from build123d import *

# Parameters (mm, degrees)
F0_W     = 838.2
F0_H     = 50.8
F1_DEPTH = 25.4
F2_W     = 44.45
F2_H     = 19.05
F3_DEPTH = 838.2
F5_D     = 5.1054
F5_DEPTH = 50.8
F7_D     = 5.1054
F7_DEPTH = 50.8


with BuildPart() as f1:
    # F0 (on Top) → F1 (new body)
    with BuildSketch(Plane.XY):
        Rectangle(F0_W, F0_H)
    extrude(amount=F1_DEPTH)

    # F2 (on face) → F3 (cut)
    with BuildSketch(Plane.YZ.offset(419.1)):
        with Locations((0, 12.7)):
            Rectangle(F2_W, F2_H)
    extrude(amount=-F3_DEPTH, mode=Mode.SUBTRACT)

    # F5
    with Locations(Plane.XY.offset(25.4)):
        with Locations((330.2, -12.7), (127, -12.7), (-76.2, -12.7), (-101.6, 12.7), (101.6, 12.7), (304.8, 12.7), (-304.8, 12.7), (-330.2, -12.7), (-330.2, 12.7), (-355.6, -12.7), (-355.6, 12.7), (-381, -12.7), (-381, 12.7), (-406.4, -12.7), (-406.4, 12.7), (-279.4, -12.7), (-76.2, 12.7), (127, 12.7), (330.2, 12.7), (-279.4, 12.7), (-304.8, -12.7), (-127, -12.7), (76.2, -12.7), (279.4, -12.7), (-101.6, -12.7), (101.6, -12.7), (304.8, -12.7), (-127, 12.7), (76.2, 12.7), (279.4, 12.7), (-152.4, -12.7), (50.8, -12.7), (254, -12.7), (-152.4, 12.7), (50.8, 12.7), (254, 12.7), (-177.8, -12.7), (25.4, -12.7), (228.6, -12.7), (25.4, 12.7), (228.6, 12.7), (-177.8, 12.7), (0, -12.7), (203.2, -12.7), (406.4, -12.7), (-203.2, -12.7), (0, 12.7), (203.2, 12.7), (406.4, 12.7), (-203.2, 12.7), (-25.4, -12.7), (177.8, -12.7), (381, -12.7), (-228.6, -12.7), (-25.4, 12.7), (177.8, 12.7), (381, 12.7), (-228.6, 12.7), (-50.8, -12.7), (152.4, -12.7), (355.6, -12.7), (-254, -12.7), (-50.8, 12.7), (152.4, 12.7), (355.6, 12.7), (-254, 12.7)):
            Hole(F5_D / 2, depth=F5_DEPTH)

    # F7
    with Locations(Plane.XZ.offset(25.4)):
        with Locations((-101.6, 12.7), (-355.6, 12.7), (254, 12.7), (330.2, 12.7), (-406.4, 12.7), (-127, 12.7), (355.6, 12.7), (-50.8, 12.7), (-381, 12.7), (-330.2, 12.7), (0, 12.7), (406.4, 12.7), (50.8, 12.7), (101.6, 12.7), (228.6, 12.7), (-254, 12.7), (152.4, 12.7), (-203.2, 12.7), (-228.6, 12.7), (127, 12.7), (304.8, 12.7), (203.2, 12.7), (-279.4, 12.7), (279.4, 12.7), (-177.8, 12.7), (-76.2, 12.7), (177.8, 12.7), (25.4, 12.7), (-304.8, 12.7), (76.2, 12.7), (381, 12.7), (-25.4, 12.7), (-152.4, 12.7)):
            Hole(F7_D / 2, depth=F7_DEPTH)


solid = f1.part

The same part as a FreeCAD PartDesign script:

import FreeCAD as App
import Part
import Sketcher
from FreeCAD import Vector
Q = App.Units.Quantity

doc = App.newDocument("Part")
body = doc.addObject("PartDesign::Body", "Body")

# Sketch on XY plane
sketch1 = body.newObject("Sketcher::SketchObject", "Sketch")
sketch1.AttachmentSupport = (doc.getObject("XY_Plane"), [""])
sketch1.MapMode = "FlatFace"
sketch1.addGeometry([
    Part.LineSegment(Vector(-419, 25, 0), Vector(-419, -25, 0)),
    Part.LineSegment(Vector(-419, -25, 0), Vector(419, -25, 0)),
    Part.LineSegment(Vector(419, -25, 0), Vector(419, 25, 0)),
    Part.LineSegment(Vector(419, 25, 0), Vector(-419, 25, 0)),
], False)
sketch1.addConstraint([
    Sketcher.Constraint("Coincident", 0, 2, 1, 1),
    Sketcher.Constraint("Coincident", 1, 2, 2, 1),
    Sketcher.Constraint("Coincident", 2, 2, 3, 1),
    Sketcher.Constraint("Coincident", 3, 2, 0, 1),
    Sketcher.Constraint("Vertical", 0),
    Sketcher.Constraint("Horizontal", 1),
    Sketcher.Constraint("Vertical", 2),
    Sketcher.Constraint("Horizontal", 3),
    Sketcher.Constraint("Symmetric", 0, 2, 2, 2, -1, 1),
    Sketcher.Constraint("DistanceX", 1, 1, 1, 2, Q("33 in")),
    Sketcher.Constraint("DistanceY", 0, 2, 0, 1, Q("2 in")),
])
pad1 = body.newObject("PartDesign::Pad", "Pad")
pad1.Profile = sketch1
pad1.Length = Q("1 in")

# Sketch on YZ plane
sketch2 = body.newObject("Sketcher::SketchObject", "Sketch001")
sketch2.AttachmentSupport = (doc.getObject("YZ_Plane"), [""])
sketch2.MapMode = "FlatFace"
sketch2.AttachmentOffset = App.Placement(Vector(0, 0, 16.5 * 25.4), App.Rotation())
sketch2.addGeometry([
    Part.LineSegment(Vector(-22, 22, 0), Vector(-22, 3, 0)),
    Part.LineSegment(Vector(-22, 3, 0), Vector(22, 3, 0)),
    Part.LineSegment(Vector(22, 3, 0), Vector(22, 22, 0)),
    Part.LineSegment(Vector(22, 22, 0), Vector(-22, 22, 0)),
], False)
sketch2.addConstraint([
    Sketcher.Constraint("Coincident", 0, 2, 1, 1),
    Sketcher.Constraint("Coincident", 1, 2, 2, 1),
    Sketcher.Constraint("Coincident", 2, 2, 3, 1),
    Sketcher.Constraint("Coincident", 3, 2, 0, 1),
    Sketcher.Constraint("Vertical", 0),
    Sketcher.Constraint("Horizontal", 1),
    Sketcher.Constraint("Vertical", 2),
    Sketcher.Constraint("Horizontal", 3),
    Sketcher.Constraint("DistanceX", 1, 1, 1, 2, Q("1.75 in")),
    Sketcher.Constraint("DistanceY", 0, 2, 0, 1, Q("0.75 in")),
    Sketcher.Constraint("DistanceX", 0, 2, -1, 1, Q("0.875 in")),
    Sketcher.Constraint("DistanceY", -1, 1, 0, 2, Q("0.125 in")),
])
pocket1 = body.newObject("PartDesign::Pocket", "Pocket")
pocket1.Profile = sketch2
pocket1.Length = Q("33 in")

# Sketch on XY plane
sketch3 = body.newObject("Sketcher::SketchObject", "Sketch002")
sketch3.AttachmentSupport = (doc.getObject("XY_Plane"), [""])
sketch3.MapMode = "FlatFace"
sketch3.AttachmentOffset = App.Placement(Vector(0, 0, 1 * 25.4), App.Rotation())
sketch3.addGeometry([
    Part.Circle(Vector(330.2, -12.7, 0), Vector(0, 0, 1), 2.6),  # 0
    Part.Circle(Vector(127, -12.7, 0), Vector(0, 0, 1), 2.6),  # 1
    Part.Circle(Vector(-76.2, -12.7, 0), Vector(0, 0, 1), 2.6),  # 2
    Part.Circle(Vector(-101.6, 12.7, 0), Vector(0, 0, 1), 2.6),  # 3
    Part.Circle(Vector(101.6, 12.7, 0), Vector(0, 0, 1), 2.6),  # 4
    Part.Circle(Vector(304.8, 12.7, 0), Vector(0, 0, 1), 2.6),  # 5
    Part.Circle(Vector(-304.8, 12.7, 0), Vector(0, 0, 1), 2.6),  # 6
    Part.Circle(Vector(-330.2, -12.7, 0), Vector(0, 0, 1), 2.6),  # 7
    Part.Circle(Vector(-330.2, 12.7, 0), Vector(0, 0, 1), 2.6),  # 8
    Part.Circle(Vector(-355.6, -12.7, 0), Vector(0, 0, 1), 2.6),  # 9
    Part.Circle(Vector(-355.6, 12.7, 0), Vector(0, 0, 1), 2.6),  # 10
    Part.Circle(Vector(-381, -12.7, 0), Vector(0, 0, 1), 2.6),  # 11
    Part.Circle(Vector(-381, 12.7, 0), Vector(0, 0, 1), 2.6),  # 12
    Part.Circle(Vector(-406.4, -12.7, 0), Vector(0, 0, 1), 2.6),  # 13
    Part.Circle(Vector(-406.4, 12.7, 0), Vector(0, 0, 1), 2.6),  # 14
    Part.Circle(Vector(-279.4, -12.7, 0), Vector(0, 0, 1), 2.6),  # 15
    Part.Circle(Vector(-76.2, 12.7, 0), Vector(0, 0, 1), 2.6),  # 16
    Part.Circle(Vector(127, 12.7, 0), Vector(0, 0, 1), 2.6),  # 17
    Part.Circle(Vector(330.2, 12.7, 0), Vector(0, 0, 1), 2.6),  # 18
    Part.Circle(Vector(-279.4, 12.7, 0), Vector(0, 0, 1), 2.6),  # 19
    Part.Circle(Vector(-304.8, -12.7, 0), Vector(0, 0, 1), 2.6),  # 20
    Part.Circle(Vector(-127, -12.7, 0), Vector(0, 0, 1), 2.6),  # 21
    Part.Circle(Vector(76.2, -12.7, 0), Vector(0, 0, 1), 2.6),  # 22
    Part.Circle(Vector(279.4, -12.7, 0), Vector(0, 0, 1), 2.6),  # 23
    Part.Circle(Vector(-101.6, -12.7, 0), Vector(0, 0, 1), 2.6),  # 24
    Part.Circle(Vector(101.6, -12.7, 0), Vector(0, 0, 1), 2.6),  # 25
    Part.Circle(Vector(304.8, -12.7, 0), Vector(0, 0, 1), 2.6),  # 26
    Part.Circle(Vector(-127, 12.7, 0), Vector(0, 0, 1), 2.6),  # 27
    Part.Circle(Vector(76.2, 12.7, 0), Vector(0, 0, 1), 2.6),  # 28
    Part.Circle(Vector(279.4, 12.7, 0), Vector(0, 0, 1), 2.6),  # 29
    Part.Circle(Vector(-152.4, -12.7, 0), Vector(0, 0, 1), 2.6),  # 30
    Part.Circle(Vector(50.8, -12.7, 0), Vector(0, 0, 1), 2.6),  # 31
    Part.Circle(Vector(254, -12.7, 0), Vector(0, 0, 1), 2.6),  # 32
    Part.Circle(Vector(-152.4, 12.7, 0), Vector(0, 0, 1), 2.6),  # 33
    Part.Circle(Vector(50.8, 12.7, 0), Vector(0, 0, 1), 2.6),  # 34
    Part.Circle(Vector(254, 12.7, 0), Vector(0, 0, 1), 2.6),  # 35
    Part.Circle(Vector(-177.8, -12.7, 0), Vector(0, 0, 1), 2.6),  # 36
    Part.Circle(Vector(25.4, -12.7, 0), Vector(0, 0, 1), 2.6),  # 37
    Part.Circle(Vector(228.6, -12.7, 0), Vector(0, 0, 1), 2.6),  # 38
    Part.Circle(Vector(25.4, 12.7, 0), Vector(0, 0, 1), 2.6),  # 39
    Part.Circle(Vector(228.6, 12.7, 0), Vector(0, 0, 1), 2.6),  # 40
    Part.Circle(Vector(-177.8, 12.7, 0), Vector(0, 0, 1), 2.6),  # 41
    Part.Circle(Vector(0, -12.7, 0), Vector(0, 0, 1), 2.6),  # 42
    Part.Circle(Vector(203.2, -12.7, 0), Vector(0, 0, 1), 2.6),  # 43
    Part.Circle(Vector(406.4, -12.7, 0), Vector(0, 0, 1), 2.6),  # 44
    Part.Circle(Vector(-203.2, -12.7, 0), Vector(0, 0, 1), 2.6),  # 45
    Part.Circle(Vector(0, 12.7, 0), Vector(0, 0, 1), 2.6),  # 46
    Part.Circle(Vector(203.2, 12.7, 0), Vector(0, 0, 1), 2.6),  # 47
    Part.Circle(Vector(406.4, 12.7, 0), Vector(0, 0, 1), 2.6),  # 48
    Part.Circle(Vector(-203.2, 12.7, 0), Vector(0, 0, 1), 2.6),  # 49
    Part.Circle(Vector(-25.4, -12.7, 0), Vector(0, 0, 1), 2.6),  # 50
    Part.Circle(Vector(177.8, -12.7, 0), Vector(0, 0, 1), 2.6),  # 51
    Part.Circle(Vector(381, -12.7, 0), Vector(0, 0, 1), 2.6),  # 52
    Part.Circle(Vector(-228.6, -12.7, 0), Vector(0, 0, 1), 2.6),  # 53
    Part.Circle(Vector(-25.4, 12.7, 0), Vector(0, 0, 1), 2.6),  # 54
    Part.Circle(Vector(177.8, 12.7, 0), Vector(0, 0, 1), 2.6),  # 55
    Part.Circle(Vector(381, 12.7, 0), Vector(0, 0, 1), 2.6),  # 56
    Part.Circle(Vector(-228.6, 12.7, 0), Vector(0, 0, 1), 2.6),  # 57
    Part.Circle(Vector(-50.8, -12.7, 0), Vector(0, 0, 1), 2.6),  # 58
    Part.Circle(Vector(152.4, -12.7, 0), Vector(0, 0, 1), 2.6),  # 59
    Part.Circle(Vector(355.6, -12.7, 0), Vector(0, 0, 1), 2.6),  # 60
    Part.Circle(Vector(-254, -12.7, 0), Vector(0, 0, 1), 2.6),  # 61
    Part.Circle(Vector(-50.8, 12.7, 0), Vector(0, 0, 1), 2.6),  # 62
    Part.Circle(Vector(152.4, 12.7, 0), Vector(0, 0, 1), 2.6),  # 63
    Part.Circle(Vector(355.6, 12.7, 0), Vector(0, 0, 1), 2.6),  # 64
    Part.Circle(Vector(-254, 12.7, 0), Vector(0, 0, 1), 2.6),  # 65
], False)
sketch3.addConstraint([
    Sketcher.Constraint("Equal", 0, 1),
    Sketcher.Constraint("Equal", 1, 2),
    Sketcher.Constraint("Equal", 2, 3),
    Sketcher.Constraint("Equal", 3, 4),
    Sketcher.Constraint("Equal", 4, 5),
    Sketcher.Constraint("Equal", 5, 6),
    Sketcher.Constraint("Equal", 6, 7),
    Sketcher.Constraint("Equal", 7, 8),
    Sketcher.Constraint("Equal", 8, 9),
    Sketcher.Constraint("Equal", 9, 10),
    Sketcher.Constraint("Equal", 10, 11),
    Sketcher.Constraint("Equal", 11, 12),
    Sketcher.Constraint("Equal", 12, 13),
    Sketcher.Constraint("Equal", 13, 14),
    Sketcher.Constraint("Equal", 14, 15),
    Sketcher.Constraint("Equal", 15, 16),
    Sketcher.Constraint("Equal", 16, 17),
    Sketcher.Constraint("Equal", 17, 18),
    Sketcher.Constraint("Equal", 18, 19),
    Sketcher.Constraint("Equal", 19, 20),
    Sketcher.Constraint("Equal", 20, 21),
    Sketcher.Constraint("Equal", 21, 22),
    Sketcher.Constraint("Equal", 22, 23),
    Sketcher.Constraint("Equal", 23, 24),
    Sketcher.Constraint("Equal", 24, 25),
    Sketcher.Constraint("Equal", 25, 26),
    Sketcher.Constraint("Equal", 26, 27),
    Sketcher.Constraint("Equal", 27, 28),
    Sketcher.Constraint("Equal", 28, 29),
    Sketcher.Constraint("Equal", 29, 30),
    Sketcher.Constraint("Equal", 30, 31),
    Sketcher.Constraint("Equal", 31, 32),
    Sketcher.Constraint("Equal", 32, 33),
    Sketcher.Constraint("Equal", 33, 34),
    Sketcher.Constraint("Equal", 34, 35),
    Sketcher.Constraint("Equal", 35, 36),
    Sketcher.Constraint("Equal", 36, 37),
    Sketcher.Constraint("Equal", 37, 38),
    Sketcher.Constraint("Equal", 38, 39),
    Sketcher.Constraint("Equal", 39, 40),
    Sketcher.Constraint("Equal", 40, 41),
    Sketcher.Constraint("Equal", 41, 42),
    Sketcher.Constraint("Equal", 42, 43),
    Sketcher.Constraint("Equal", 43, 44),
    Sketcher.Constraint("Equal", 44, 45),
    Sketcher.Constraint("Equal", 45, 46),
    Sketcher.Constraint("Equal", 46, 47),
    Sketcher.Constraint("Equal", 47, 48),
    Sketcher.Constraint("Equal", 48, 49),
    Sketcher.Constraint("Equal", 49, 50),
    Sketcher.Constraint("Equal", 50, 51),
    Sketcher.Constraint("Equal", 51, 52),
    Sketcher.Constraint("Equal", 52, 53),
    Sketcher.Constraint("Equal", 53, 54),
    Sketcher.Constraint("Equal", 54, 55),
    Sketcher.Constraint("Equal", 55, 56),
    Sketcher.Constraint("Equal", 56, 57),
    Sketcher.Constraint("Equal", 57, 58),
    Sketcher.Constraint("Equal", 58, 59),
    Sketcher.Constraint("Equal", 59, 60),
    Sketcher.Constraint("Equal", 60, 61),
    Sketcher.Constraint("Equal", 61, 62),
    Sketcher.Constraint("Equal", 62, 63),
    Sketcher.Constraint("Equal", 63, 64),
    Sketcher.Constraint("Equal", 64, 65),
    Sketcher.Constraint("Symmetric", 0, 3, 8, 3, -1, 1),
    Sketcher.Constraint("Symmetric", 7, 3, 18, 3, -1, 1),
    Sketcher.Constraint("Symmetric", 5, 3, 20, 3, -1, 1),
    Sketcher.Constraint("Symmetric", 17, 3, 21, 3, -1, 1),
    Sketcher.Constraint("Symmetric", 16, 3, 22, 3, -1, 1),
    Sketcher.Constraint("Symmetric", 19, 3, 23, 3, -1, 1),
    Sketcher.Constraint("Symmetric", 4, 3, 24, 3, -1, 1),
    Sketcher.Constraint("Symmetric", 3, 3, 25, 3, -1, 1),
    Sketcher.Constraint("Symmetric", 6, 3, 26, 3, -1, 1),
    Sketcher.Constraint("Symmetric", 1, 3, 27, 3, -1, 1),
    Sketcher.Constraint("Symmetric", 2, 3, 28, 3, -1, 1),
    Sketcher.Constraint("Symmetric", 15, 3, 29, 3, -1, 1),
    Sketcher.Constraint("Symmetric", 14, 3, 44, 3, -1, 1),
    Sketcher.Constraint("Symmetric", 42, 3, 46, 3, -1, 1),
    Sketcher.Constraint("Symmetric", 45, 3, 47, 3, -1, 1),
    Sketcher.Constraint("Symmetric", 13, 3, 48, 3, -1, 1),
    Sketcher.Constraint("Symmetric", 43, 3, 49, 3, -1, 1),
    Sketcher.Constraint("Symmetric", 39, 3, 50, 3, -1, 1),
    Sketcher.Constraint("Symmetric", 41, 3, 51, 3, -1, 1),
    Sketcher.Constraint("Symmetric", 12, 3, 52, 3, -1, 1),
    Sketcher.Constraint("Symmetric", 40, 3, 53, 3, -1, 1),
    Sketcher.Constraint("Symmetric", 37, 3, 54, 3, -1, 1),
    Sketcher.Constraint("Symmetric", 36, 3, 55, 3, -1, 1),
    Sketcher.Constraint("Symmetric", 11, 3, 56, 3, -1, 1),
    Sketcher.Constraint("Symmetric", 38, 3, 57, 3, -1, 1),
    Sketcher.Constraint("Symmetric", 34, 3, 58, 3, -1, 1),
    Sketcher.Constraint("Symmetric", 33, 3, 59, 3, -1, 1),
    Sketcher.Constraint("Symmetric", 10, 3, 60, 3, -1, 1),
    Sketcher.Constraint("Symmetric", 35, 3, 61, 3, -1, 1),
    Sketcher.Constraint("Symmetric", 31, 3, 62, 3, -1, 1),
    Sketcher.Constraint("Symmetric", 30, 3, 63, 3, -1, 1),
    Sketcher.Constraint("Symmetric", 9, 3, 64, 3, -1, 1),
    Sketcher.Constraint("Symmetric", 32, 3, 65, 3, -1, 1),
    Sketcher.Constraint("Symmetric", 3, 3, 4, 3, -2),
    Sketcher.Constraint("Symmetric", 5, 3, 6, 3, -2),
    Sketcher.Constraint("Symmetric", 0, 3, 7, 3, -2),
    Sketcher.Constraint("Symmetric", 1, 3, 21, 3, -2),
    Sketcher.Constraint("Symmetric", 2, 3, 22, 3, -2),
    Sketcher.Constraint("Symmetric", 15, 3, 23, 3, -2),
    Sketcher.Constraint("Symmetric", 13, 3, 44, 3, -2),
    Sketcher.Constraint("Symmetric", 43, 3, 45, 3, -2),
    Sketcher.Constraint("Symmetric", 37, 3, 50, 3, -2),
    Sketcher.Constraint("Symmetric", 36, 3, 51, 3, -2),
    Sketcher.Constraint("Symmetric", 11, 3, 52, 3, -2),
    Sketcher.Constraint("Symmetric", 38, 3, 53, 3, -2),
    Sketcher.Constraint("Symmetric", 31, 3, 58, 3, -2),
    Sketcher.Constraint("Symmetric", 30, 3, 59, 3, -2),
    Sketcher.Constraint("Symmetric", 9, 3, 60, 3, -2),
    Sketcher.Constraint("Symmetric", 32, 3, 61, 3, -2),
    Sketcher.Constraint("PointOnObject", 42, 3, -2),
    Sketcher.Constraint("Horizontal", 0, 3, 1, 3),
    Sketcher.Constraint("Horizontal", 1, 3, 2, 3),
    Sketcher.Constraint("Horizontal", 4, 3, 5, 3),
    Sketcher.Constraint("Horizontal", 6, 3, 8, 3),
    Sketcher.Constraint("Horizontal", 7, 3, 9, 3),
    Sketcher.Constraint("Horizontal", 9, 3, 11, 3),
    Sketcher.Constraint("Horizontal", 11, 3, 13, 3),
    Sketcher.Constraint("Horizontal", 13, 3, 15, 3),
    Sketcher.Constraint("Horizontal", 26, 3, 30, 3),
    Sketcher.Constraint("Horizontal", 30, 3, 31, 3),
    Sketcher.Constraint("Horizontal", 31, 3, 32, 3),
    Sketcher.Constraint("Horizontal", 32, 3, 36, 3),
    Sketcher.Constraint("Horizontal", 36, 3, 37, 3),
    Sketcher.Constraint("Horizontal", 37, 3, 38, 3),
    Sketcher.Constraint("Horizontal", 38, 3, 42, 3),
    Sketcher.Constraint("Horizontal", 42, 3, 43, 3),
    Sketcher.Constraint("Diameter", 0, Q("0.201 in")),
    Sketcher.Constraint("DistanceX", -1, 1, 0, 3, Q("13 in")),
    Sketcher.Constraint("DistanceX", -1, 1, 1, 3, Q("5 in")),
    Sketcher.Constraint("DistanceX", 2, 3, -1, 1, Q("3 in")),
    Sketcher.Constraint("DistanceX", 3, 3, -1, 1, Q("4 in")),
    Sketcher.Constraint("DistanceX", -1, 1, 5, 3, Q("12 in")),
    Sketcher.Constraint("DistanceX", 9, 3, -1, 1, Q("14 in")),
    Sketcher.Constraint("DistanceX", 11, 3, -1, 1, Q("15 in")),
    Sketcher.Constraint("DistanceX", 13, 3, -1, 1, Q("16 in")),
    Sketcher.Constraint("DistanceX", 15, 3, -1, 1, Q("11 in")),
    Sketcher.Constraint("DistanceX", 30, 3, -1, 1, Q("6 in")),
    Sketcher.Constraint("DistanceX", -1, 1, 31, 3, Q("2 in")),
    Sketcher.Constraint("DistanceX", -1, 1, 32, 3, Q("10 in")),
    Sketcher.Constraint("DistanceX", 36, 3, -1, 1, Q("7 in")),
    Sketcher.Constraint("DistanceX", -1, 1, 37, 3, Q("1 in")),
    Sketcher.Constraint("DistanceX", -1, 1, 38, 3, Q("9 in")),
    Sketcher.Constraint("DistanceX", -1, 1, 43, 3, Q("8 in")),
    Sketcher.Constraint("DistanceY", 0, 3, -1, 1, Q("0.5 in")),
])
doc.recompute()
hole = body.newObject("PartDesign::Hole", "Hole")
hole.Profile = sketch3
hole.ThreadType = "None"
hole.Diameter = Q("0.201 in")
hole.DepthType = "Dimension"
hole.Depth = Q("2 in")
hole.DrillPoint = "Flat"

# Sketch on XZ plane
sketch4 = body.newObject("Sketcher::SketchObject", "Sketch003")
sketch4.AttachmentSupport = (doc.getObject("XZ_Plane"), [""])
sketch4.MapMode = "FlatFace"
sketch4.AttachmentOffset = App.Placement(Vector(0, 0, 1 * 25.4), App.Rotation())
sketch4.addGeometry([
    Part.Circle(Vector(-101.6, 12.7, 0), Vector(0, 0, 1), 2.6),  # 0
    Part.Circle(Vector(-355.6, 12.7, 0), Vector(0, 0, 1), 2.6),  # 1
    Part.Circle(Vector(254, 12.7, 0), Vector(0, 0, 1), 2.6),  # 2
    Part.Circle(Vector(330.2, 12.7, 0), Vector(0, 0, 1), 2.6),  # 3
    Part.Circle(Vector(-406.4, 12.7, 0), Vector(0, 0, 1), 2.6),  # 4
    Part.Circle(Vector(-127, 12.7, 0), Vector(0, 0, 1), 2.6),  # 5
    Part.Circle(Vector(355.6, 12.7, 0), Vector(0, 0, 1), 2.6),  # 6
    Part.Circle(Vector(-50.8, 12.7, 0), Vector(0, 0, 1), 2.6),  # 7
    Part.Circle(Vector(-381, 12.7, 0), Vector(0, 0, 1), 2.6),  # 8
    Part.Circle(Vector(-330.2, 12.7, 0), Vector(0, 0, 1), 2.6),  # 9
    Part.Circle(Vector(0, 12.7, 0), Vector(0, 0, 1), 2.6),  # 10
    Part.Circle(Vector(406.4, 12.7, 0), Vector(0, 0, 1), 2.6),  # 11
    Part.Circle(Vector(50.8, 12.7, 0), Vector(0, 0, 1), 2.6),  # 12
    Part.Circle(Vector(101.6, 12.7, 0), Vector(0, 0, 1), 2.6),  # 13
    Part.Circle(Vector(228.6, 12.7, 0), Vector(0, 0, 1), 2.6),  # 14
    Part.Circle(Vector(-254, 12.7, 0), Vector(0, 0, 1), 2.6),  # 15
    Part.Circle(Vector(152.4, 12.7, 0), Vector(0, 0, 1), 2.6),  # 16
    Part.Circle(Vector(-203.2, 12.7, 0), Vector(0, 0, 1), 2.6),  # 17
    Part.Circle(Vector(-228.6, 12.7, 0), Vector(0, 0, 1), 2.6),  # 18
    Part.Circle(Vector(127, 12.7, 0), Vector(0, 0, 1), 2.6),  # 19
    Part.Circle(Vector(304.8, 12.7, 0), Vector(0, 0, 1), 2.6),  # 20
    Part.Circle(Vector(203.2, 12.7, 0), Vector(0, 0, 1), 2.6),  # 21
    Part.Circle(Vector(-279.4, 12.7, 0), Vector(0, 0, 1), 2.6),  # 22
    Part.Circle(Vector(279.4, 12.7, 0), Vector(0, 0, 1), 2.6),  # 23
    Part.Circle(Vector(-177.8, 12.7, 0), Vector(0, 0, 1), 2.6),  # 24
    Part.Circle(Vector(-76.2, 12.7, 0), Vector(0, 0, 1), 2.6),  # 25
    Part.Circle(Vector(177.8, 12.7, 0), Vector(0, 0, 1), 2.6),  # 26
    Part.Circle(Vector(25.4, 12.7, 0), Vector(0, 0, 1), 2.6),  # 27
    Part.Circle(Vector(-304.8, 12.7, 0), Vector(0, 0, 1), 2.6),  # 28
    Part.Circle(Vector(76.2, 12.7, 0), Vector(0, 0, 1), 2.6),  # 29
    Part.Circle(Vector(381, 12.7, 0), Vector(0, 0, 1), 2.6),  # 30
    Part.Circle(Vector(-25.4, 12.7, 0), Vector(0, 0, 1), 2.6),  # 31
    Part.Circle(Vector(-152.4, 12.7, 0), Vector(0, 0, 1), 2.6),  # 32
], False)
sketch4.addConstraint([
    Sketcher.Constraint("Equal", 0, 1),
    Sketcher.Constraint("Equal", 1, 2),
    Sketcher.Constraint("Equal", 2, 3),
    Sketcher.Constraint("Equal", 3, 4),
    Sketcher.Constraint("Equal", 4, 5),
    Sketcher.Constraint("Equal", 5, 6),
    Sketcher.Constraint("Equal", 6, 7),
    Sketcher.Constraint("Equal", 7, 8),
    Sketcher.Constraint("Equal", 8, 9),
    Sketcher.Constraint("Equal", 9, 10),
    Sketcher.Constraint("Equal", 10, 11),
    Sketcher.Constraint("Equal", 11, 12),
    Sketcher.Constraint("Equal", 12, 13),
    Sketcher.Constraint("Equal", 13, 14),
    Sketcher.Constraint("Equal", 14, 15),
    Sketcher.Constraint("Equal", 15, 16),
    Sketcher.Constraint("Equal", 16, 17),
    Sketcher.Constraint("Equal", 17, 18),
    Sketcher.Constraint("Equal", 18, 19),
    Sketcher.Constraint("Equal", 19, 20),
    Sketcher.Constraint("Equal", 20, 21),
    Sketcher.Constraint("Equal", 21, 22),
    Sketcher.Constraint("Equal", 22, 23),
    Sketcher.Constraint("Equal", 23, 24),
    Sketcher.Constraint("Equal", 24, 25),
    Sketcher.Constraint("Equal", 25, 26),
    Sketcher.Constraint("Equal", 26, 27),
    Sketcher.Constraint("Equal", 27, 28),
    Sketcher.Constraint("Equal", 28, 29),
    Sketcher.Constraint("Equal", 29, 30),
    Sketcher.Constraint("Equal", 30, 31),
    Sketcher.Constraint("Equal", 31, 32),
    Sketcher.Constraint("Symmetric", 1, 3, 6, 3, -2),
    Sketcher.Constraint("Symmetric", 3, 3, 9, 3, -2),
    Sketcher.Constraint("Symmetric", 4, 3, 11, 3, -2),
    Sketcher.Constraint("Symmetric", 7, 3, 12, 3, -2),
    Sketcher.Constraint("Symmetric", 0, 3, 13, 3, -2),
    Sketcher.Constraint("Symmetric", 2, 3, 15, 3, -2),
    Sketcher.Constraint("Symmetric", 14, 3, 18, 3, -2),
    Sketcher.Constraint("Symmetric", 5, 3, 19, 3, -2),
    Sketcher.Constraint("Symmetric", 17, 3, 21, 3, -2),
    Sketcher.Constraint("Symmetric", 22, 3, 23, 3, -2),
    Sketcher.Constraint("Symmetric", 24, 3, 26, 3, -2),
    Sketcher.Constraint("Symmetric", 20, 3, 28, 3, -2),
    Sketcher.Constraint("Symmetric", 25, 3, 29, 3, -2),
    Sketcher.Constraint("Symmetric", 8, 3, 30, 3, -2),
    Sketcher.Constraint("Symmetric", 27, 3, 31, 3, -2),
    Sketcher.Constraint("Symmetric", 16, 3, 32, 3, -2),
    Sketcher.Constraint("PointOnObject", 10, 3, -2),
    Sketcher.Constraint("Horizontal", 0, 3, 1, 3),
    Sketcher.Constraint("Horizontal", 1, 3, 2, 3),
    Sketcher.Constraint("Horizontal", 2, 3, 3, 3),
    Sketcher.Constraint("Horizontal", 3, 3, 4, 3),
    Sketcher.Constraint("Horizontal", 4, 3, 5, 3),
    Sketcher.Constraint("Horizontal", 6, 3, 7, 3),
    Sketcher.Constraint("Horizontal", 7, 3, 8, 3),
    Sketcher.Constraint("Horizontal", 9, 3, 10, 3),
    Sketcher.Constraint("Horizontal", 13, 3, 14, 3),
    Sketcher.Constraint("Horizontal", 15, 3, 16, 3),
    Sketcher.Constraint("Horizontal", 16, 3, 17, 3),
    Sketcher.Constraint("Horizontal", 19, 3, 20, 3),
    Sketcher.Constraint("Horizontal", 21, 3, 22, 3),
    Sketcher.Constraint("Horizontal", 23, 3, 24, 3),
    Sketcher.Constraint("Horizontal", 24, 3, 25, 3),
    Sketcher.Constraint("Horizontal", 26, 3, 27, 3),
    Sketcher.Constraint("Diameter", 0, Q("0.201 in")),
    Sketcher.Constraint("DistanceX", 0, 3, -1, 1, Q("4 in")),
    Sketcher.Constraint("DistanceX", 1, 3, -1, 1, Q("14 in")),
    Sketcher.Constraint("DistanceX", -1, 1, 2, 3, Q("10 in")),
    Sketcher.Constraint("DistanceX", -1, 1, 3, 3, Q("13 in")),
    Sketcher.Constraint("DistanceX", 4, 3, -1, 1, Q("16 in")),
    Sketcher.Constraint("DistanceX", 5, 3, -1, 1, Q("5 in")),
    Sketcher.Constraint("DistanceX", 7, 3, -1, 1, Q("2 in")),
    Sketcher.Constraint("DistanceX", 8, 3, -1, 1, Q("15 in")),
    Sketcher.Constraint("DistanceX", -1, 1, 14, 3, Q("9 in")),
    Sketcher.Constraint("DistanceX", -1, 1, 16, 3, Q("6 in")),
    Sketcher.Constraint("DistanceX", 17, 3, -1, 1, Q("8 in")),
    Sketcher.Constraint("DistanceX", -1, 1, 20, 3, Q("12 in")),
    Sketcher.Constraint("DistanceX", 22, 3, -1, 1, Q("11 in")),
    Sketcher.Constraint("DistanceX", 24, 3, -1, 1, Q("7 in")),
    Sketcher.Constraint("DistanceX", 25, 3, -1, 1, Q("3 in")),
    Sketcher.Constraint("DistanceX", -1, 1, 27, 3, Q("1 in")),
    Sketcher.Constraint("DistanceY", -1, 1, 0, 3, Q("0.5 in")),
])
doc.recompute()
hole2 = body.newObject("PartDesign::Hole", "Hole001")
hole2.Profile = sketch4
hole2.ThreadType = "None"
hole2.Diameter = Q("0.201 in")
hole2.DepthType = "Dimension"
hole2.Depth = Q("2 in")
hole2.DrillPoint = "Flat"

doc.recompute()
